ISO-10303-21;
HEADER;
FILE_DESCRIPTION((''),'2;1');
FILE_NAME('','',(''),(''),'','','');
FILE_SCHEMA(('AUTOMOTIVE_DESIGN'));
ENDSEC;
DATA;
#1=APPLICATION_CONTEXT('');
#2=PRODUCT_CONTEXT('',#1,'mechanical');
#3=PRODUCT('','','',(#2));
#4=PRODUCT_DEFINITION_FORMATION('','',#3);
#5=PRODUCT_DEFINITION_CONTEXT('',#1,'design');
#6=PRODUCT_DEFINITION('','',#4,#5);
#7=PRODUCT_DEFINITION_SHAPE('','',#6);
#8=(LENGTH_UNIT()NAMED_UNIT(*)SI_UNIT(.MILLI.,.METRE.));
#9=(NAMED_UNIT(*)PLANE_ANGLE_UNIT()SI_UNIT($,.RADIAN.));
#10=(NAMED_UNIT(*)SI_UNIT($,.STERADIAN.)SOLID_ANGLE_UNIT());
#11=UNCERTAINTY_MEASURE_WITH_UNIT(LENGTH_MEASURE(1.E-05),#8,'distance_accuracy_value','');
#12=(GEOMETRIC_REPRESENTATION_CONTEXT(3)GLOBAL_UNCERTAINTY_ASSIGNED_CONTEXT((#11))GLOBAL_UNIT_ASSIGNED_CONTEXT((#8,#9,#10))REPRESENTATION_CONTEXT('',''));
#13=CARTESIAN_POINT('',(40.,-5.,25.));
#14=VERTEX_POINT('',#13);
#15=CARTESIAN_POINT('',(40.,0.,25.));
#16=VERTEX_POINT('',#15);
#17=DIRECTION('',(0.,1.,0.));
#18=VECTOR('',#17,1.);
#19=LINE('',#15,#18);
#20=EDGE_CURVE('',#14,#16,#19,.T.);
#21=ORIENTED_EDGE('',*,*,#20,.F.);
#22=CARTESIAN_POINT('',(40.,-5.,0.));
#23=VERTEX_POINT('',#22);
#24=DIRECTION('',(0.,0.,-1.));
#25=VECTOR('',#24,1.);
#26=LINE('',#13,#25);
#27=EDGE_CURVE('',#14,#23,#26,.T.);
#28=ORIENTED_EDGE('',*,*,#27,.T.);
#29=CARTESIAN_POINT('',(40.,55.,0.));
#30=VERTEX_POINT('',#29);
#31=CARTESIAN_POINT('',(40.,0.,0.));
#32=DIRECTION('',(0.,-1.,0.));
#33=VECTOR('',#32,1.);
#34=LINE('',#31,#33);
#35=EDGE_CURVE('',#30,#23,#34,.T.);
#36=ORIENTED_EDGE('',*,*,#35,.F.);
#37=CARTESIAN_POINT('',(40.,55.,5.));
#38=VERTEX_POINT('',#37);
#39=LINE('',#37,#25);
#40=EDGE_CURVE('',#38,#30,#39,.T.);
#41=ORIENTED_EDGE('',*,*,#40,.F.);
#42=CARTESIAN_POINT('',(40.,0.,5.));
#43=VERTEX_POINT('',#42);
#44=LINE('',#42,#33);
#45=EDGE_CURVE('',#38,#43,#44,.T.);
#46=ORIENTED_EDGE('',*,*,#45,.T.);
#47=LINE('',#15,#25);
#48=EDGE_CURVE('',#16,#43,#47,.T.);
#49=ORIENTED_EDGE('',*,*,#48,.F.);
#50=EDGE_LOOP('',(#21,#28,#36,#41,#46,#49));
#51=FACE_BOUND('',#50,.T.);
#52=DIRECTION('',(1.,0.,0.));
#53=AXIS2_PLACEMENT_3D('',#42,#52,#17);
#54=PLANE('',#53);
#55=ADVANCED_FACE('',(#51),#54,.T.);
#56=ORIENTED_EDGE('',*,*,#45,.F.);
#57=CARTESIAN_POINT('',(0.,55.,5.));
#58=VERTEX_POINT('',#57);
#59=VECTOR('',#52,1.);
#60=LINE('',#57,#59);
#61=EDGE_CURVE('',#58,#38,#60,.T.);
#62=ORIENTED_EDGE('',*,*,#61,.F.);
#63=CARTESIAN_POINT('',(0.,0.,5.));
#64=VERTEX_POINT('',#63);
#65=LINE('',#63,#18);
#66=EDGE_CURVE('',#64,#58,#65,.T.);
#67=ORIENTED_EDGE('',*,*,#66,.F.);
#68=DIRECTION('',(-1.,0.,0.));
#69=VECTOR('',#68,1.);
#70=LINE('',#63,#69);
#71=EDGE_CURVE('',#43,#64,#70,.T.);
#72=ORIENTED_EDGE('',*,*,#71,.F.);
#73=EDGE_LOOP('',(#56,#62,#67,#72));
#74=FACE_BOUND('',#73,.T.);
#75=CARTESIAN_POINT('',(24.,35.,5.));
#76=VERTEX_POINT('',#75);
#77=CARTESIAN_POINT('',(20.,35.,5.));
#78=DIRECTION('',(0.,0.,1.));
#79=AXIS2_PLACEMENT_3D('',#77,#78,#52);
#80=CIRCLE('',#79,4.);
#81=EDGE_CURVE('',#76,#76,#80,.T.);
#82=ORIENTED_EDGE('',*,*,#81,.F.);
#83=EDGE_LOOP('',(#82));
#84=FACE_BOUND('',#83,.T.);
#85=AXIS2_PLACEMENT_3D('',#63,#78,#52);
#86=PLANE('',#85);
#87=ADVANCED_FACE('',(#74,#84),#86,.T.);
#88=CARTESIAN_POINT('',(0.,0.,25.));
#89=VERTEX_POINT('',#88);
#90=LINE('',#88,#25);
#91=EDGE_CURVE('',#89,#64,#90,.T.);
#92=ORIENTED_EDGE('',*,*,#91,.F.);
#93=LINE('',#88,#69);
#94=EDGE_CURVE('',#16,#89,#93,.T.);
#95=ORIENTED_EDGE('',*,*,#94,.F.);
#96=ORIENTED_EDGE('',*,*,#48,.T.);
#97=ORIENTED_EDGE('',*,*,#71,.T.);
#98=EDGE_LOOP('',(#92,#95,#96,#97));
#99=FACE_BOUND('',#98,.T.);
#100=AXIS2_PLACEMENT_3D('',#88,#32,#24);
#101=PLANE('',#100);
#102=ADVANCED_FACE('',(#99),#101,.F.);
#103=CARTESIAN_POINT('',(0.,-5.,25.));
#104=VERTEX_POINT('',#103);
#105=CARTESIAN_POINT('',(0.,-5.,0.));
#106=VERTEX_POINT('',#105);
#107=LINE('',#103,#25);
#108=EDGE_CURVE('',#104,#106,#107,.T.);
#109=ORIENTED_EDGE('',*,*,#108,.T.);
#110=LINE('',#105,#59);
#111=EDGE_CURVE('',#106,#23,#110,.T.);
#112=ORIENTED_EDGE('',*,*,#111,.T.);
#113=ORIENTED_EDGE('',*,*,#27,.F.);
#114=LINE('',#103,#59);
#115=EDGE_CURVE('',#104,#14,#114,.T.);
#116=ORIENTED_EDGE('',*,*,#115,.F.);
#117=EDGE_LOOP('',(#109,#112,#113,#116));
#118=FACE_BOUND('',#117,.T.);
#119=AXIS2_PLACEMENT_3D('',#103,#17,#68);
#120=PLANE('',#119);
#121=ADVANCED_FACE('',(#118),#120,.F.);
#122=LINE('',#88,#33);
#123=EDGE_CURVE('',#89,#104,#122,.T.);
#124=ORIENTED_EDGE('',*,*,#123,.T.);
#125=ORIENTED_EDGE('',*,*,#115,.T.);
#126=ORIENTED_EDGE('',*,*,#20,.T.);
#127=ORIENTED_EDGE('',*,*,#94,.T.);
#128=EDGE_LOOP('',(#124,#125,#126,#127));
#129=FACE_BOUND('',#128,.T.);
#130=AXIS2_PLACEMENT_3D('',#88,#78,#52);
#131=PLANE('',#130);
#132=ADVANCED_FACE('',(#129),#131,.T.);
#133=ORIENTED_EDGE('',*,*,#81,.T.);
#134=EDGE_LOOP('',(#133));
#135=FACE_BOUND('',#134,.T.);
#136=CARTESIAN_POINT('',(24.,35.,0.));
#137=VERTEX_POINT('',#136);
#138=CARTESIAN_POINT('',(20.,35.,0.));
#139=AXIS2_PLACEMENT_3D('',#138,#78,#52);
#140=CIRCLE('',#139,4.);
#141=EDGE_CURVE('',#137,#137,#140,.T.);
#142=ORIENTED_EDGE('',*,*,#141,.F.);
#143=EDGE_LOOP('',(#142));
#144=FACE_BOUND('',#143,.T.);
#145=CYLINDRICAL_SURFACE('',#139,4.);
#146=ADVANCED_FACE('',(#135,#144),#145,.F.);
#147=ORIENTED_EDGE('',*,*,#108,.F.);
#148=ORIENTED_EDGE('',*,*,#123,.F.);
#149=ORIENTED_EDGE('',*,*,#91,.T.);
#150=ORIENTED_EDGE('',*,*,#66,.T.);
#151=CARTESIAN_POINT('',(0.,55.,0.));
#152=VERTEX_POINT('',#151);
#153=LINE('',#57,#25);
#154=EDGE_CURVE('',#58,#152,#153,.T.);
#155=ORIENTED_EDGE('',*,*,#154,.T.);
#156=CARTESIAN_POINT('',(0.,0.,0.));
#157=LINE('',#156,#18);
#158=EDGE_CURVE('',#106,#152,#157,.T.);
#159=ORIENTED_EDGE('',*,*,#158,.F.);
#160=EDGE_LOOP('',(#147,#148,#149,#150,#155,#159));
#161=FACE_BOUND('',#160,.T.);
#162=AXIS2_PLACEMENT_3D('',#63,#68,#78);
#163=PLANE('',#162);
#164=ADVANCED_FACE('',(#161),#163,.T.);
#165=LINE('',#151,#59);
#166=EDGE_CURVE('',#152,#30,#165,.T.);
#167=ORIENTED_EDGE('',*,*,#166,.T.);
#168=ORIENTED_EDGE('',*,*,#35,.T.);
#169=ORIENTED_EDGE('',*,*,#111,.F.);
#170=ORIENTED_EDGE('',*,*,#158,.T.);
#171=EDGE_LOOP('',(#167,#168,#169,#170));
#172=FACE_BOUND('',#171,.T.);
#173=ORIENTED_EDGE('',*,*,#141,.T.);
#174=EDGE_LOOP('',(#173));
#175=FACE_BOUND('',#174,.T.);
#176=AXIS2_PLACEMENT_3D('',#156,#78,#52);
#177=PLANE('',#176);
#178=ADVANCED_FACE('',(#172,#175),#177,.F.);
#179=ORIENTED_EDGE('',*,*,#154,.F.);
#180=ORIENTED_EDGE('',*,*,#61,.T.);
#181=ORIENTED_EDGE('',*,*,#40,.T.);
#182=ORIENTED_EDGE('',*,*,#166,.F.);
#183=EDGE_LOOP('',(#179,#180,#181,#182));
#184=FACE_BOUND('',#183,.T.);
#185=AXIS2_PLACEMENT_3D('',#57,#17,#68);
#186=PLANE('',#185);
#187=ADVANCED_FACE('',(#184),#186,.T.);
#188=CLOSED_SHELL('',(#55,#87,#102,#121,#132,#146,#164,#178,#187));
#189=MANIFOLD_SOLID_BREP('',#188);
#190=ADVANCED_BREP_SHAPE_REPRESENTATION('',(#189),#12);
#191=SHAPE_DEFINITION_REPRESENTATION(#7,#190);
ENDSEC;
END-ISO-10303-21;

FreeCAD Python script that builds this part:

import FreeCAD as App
import Part
import Sketcher
from FreeCAD import Vector


def add_polygon(sketch, points):
    """Adds a closed chain of lines whose ends are joined by coincident constraints."""
    first, n = sketch.GeometryCount, len(points)
    for a, b in zip(points, points[1:] + points[:1]):
        sketch.addGeometry(Part.LineSegment(App.Vector(*a, 0), App.Vector(*b, 0)), False)
    for i in range(n):
        sketch.addConstraint(Sketcher.Constraint("Coincident", first + i, 2, first + (i + 1) % n, 1))

doc = App.newDocument("Part")
body = doc.addObject("PartDesign::Body", "Body")

sketch1 = body.newObject("Sketcher::SketchObject", "Sketch")
sketch1.AttachmentSupport = (doc.getObject("XY_Plane"), [""])
sketch1.MapMode = "FlatFace"
add_polygon(sketch1, [(0, 55), (0, 0), (40, 0), (40, 55)])
sketch1.addConstraint([
    Sketcher.Constraint("Vertical", 0),
    Sketcher.Constraint("Horizontal", 1),
    Sketcher.Constraint("Vertical", 2),
    Sketcher.Constraint("Horizontal", 3),
    Sketcher.Constraint("Coincident", 0, 2, -1, 1),
    Sketcher.Constraint("DistanceX", 1, 1, 1, 2, 40.0),
    Sketcher.Constraint("DistanceY", 0, 2, 0, 1, 55.0),
])
pad1 = body.newObject("PartDesign::Pad", "Pad")
pad1.Profile = sketch1
pad1.Length = 5

sketch2 = body.newObject("Sketcher::SketchObject", "Sketch001")
sketch2.AttachmentSupport = (doc.getObject("XY_Plane"), [""])
sketch2.MapMode = "FlatFace"
add_polygon(sketch2, [(0, 0), (0, -5), (40, -5), (40, 0)])
sketch2.addConstraint([
    Sketcher.Constraint("Vertical", 0),
    Sketcher.Constraint("Horizontal", 1),
    Sketcher.Constraint("Vertical", 2),
    Sketcher.Constraint("Horizontal", 3),
    Sketcher.Constraint("Coincident", 3, 2, -1, 1),
    Sketcher.Constraint("DistanceX", 1, 1, 1, 2, 40.0),
    Sketcher.Constraint("DistanceY", 0, 2, 0, 1, 5.0),
])
pad2 = body.newObject("PartDesign::Pad", "Pad001")
pad2.Profile = sketch2
pad2.Length = 25

sketch3 = body.newObject("Sketcher::SketchObject", "Sketch002")
sketch3.AttachmentSupport = (doc.getObject("XY_Plane"), [""])
sketch3.MapMode = "FlatFace"
sketch3.AttachmentOffset = App.Placement(Vector(0, 0, 5), App.Rotation())
sketch3.addGeometry(Part.Circle(Vector(20, 35, 0), Vector(0, 0, 1), 4), False)
sketch3.addConstraint([
    Sketcher.Constraint("Diameter", 0, 8.0),
    Sketcher.Constraint("DistanceX", -1, 1, 0, 3, 20.0),
    Sketcher.Constraint("DistanceY", -1, 1, 0, 3, 35.0),
])
pocket1 = body.newObject("PartDesign::Pocket", "Pocket")
pocket1.Profile = sketch3
pocket1.Type = "ThroughAll"

doc.recompute()
